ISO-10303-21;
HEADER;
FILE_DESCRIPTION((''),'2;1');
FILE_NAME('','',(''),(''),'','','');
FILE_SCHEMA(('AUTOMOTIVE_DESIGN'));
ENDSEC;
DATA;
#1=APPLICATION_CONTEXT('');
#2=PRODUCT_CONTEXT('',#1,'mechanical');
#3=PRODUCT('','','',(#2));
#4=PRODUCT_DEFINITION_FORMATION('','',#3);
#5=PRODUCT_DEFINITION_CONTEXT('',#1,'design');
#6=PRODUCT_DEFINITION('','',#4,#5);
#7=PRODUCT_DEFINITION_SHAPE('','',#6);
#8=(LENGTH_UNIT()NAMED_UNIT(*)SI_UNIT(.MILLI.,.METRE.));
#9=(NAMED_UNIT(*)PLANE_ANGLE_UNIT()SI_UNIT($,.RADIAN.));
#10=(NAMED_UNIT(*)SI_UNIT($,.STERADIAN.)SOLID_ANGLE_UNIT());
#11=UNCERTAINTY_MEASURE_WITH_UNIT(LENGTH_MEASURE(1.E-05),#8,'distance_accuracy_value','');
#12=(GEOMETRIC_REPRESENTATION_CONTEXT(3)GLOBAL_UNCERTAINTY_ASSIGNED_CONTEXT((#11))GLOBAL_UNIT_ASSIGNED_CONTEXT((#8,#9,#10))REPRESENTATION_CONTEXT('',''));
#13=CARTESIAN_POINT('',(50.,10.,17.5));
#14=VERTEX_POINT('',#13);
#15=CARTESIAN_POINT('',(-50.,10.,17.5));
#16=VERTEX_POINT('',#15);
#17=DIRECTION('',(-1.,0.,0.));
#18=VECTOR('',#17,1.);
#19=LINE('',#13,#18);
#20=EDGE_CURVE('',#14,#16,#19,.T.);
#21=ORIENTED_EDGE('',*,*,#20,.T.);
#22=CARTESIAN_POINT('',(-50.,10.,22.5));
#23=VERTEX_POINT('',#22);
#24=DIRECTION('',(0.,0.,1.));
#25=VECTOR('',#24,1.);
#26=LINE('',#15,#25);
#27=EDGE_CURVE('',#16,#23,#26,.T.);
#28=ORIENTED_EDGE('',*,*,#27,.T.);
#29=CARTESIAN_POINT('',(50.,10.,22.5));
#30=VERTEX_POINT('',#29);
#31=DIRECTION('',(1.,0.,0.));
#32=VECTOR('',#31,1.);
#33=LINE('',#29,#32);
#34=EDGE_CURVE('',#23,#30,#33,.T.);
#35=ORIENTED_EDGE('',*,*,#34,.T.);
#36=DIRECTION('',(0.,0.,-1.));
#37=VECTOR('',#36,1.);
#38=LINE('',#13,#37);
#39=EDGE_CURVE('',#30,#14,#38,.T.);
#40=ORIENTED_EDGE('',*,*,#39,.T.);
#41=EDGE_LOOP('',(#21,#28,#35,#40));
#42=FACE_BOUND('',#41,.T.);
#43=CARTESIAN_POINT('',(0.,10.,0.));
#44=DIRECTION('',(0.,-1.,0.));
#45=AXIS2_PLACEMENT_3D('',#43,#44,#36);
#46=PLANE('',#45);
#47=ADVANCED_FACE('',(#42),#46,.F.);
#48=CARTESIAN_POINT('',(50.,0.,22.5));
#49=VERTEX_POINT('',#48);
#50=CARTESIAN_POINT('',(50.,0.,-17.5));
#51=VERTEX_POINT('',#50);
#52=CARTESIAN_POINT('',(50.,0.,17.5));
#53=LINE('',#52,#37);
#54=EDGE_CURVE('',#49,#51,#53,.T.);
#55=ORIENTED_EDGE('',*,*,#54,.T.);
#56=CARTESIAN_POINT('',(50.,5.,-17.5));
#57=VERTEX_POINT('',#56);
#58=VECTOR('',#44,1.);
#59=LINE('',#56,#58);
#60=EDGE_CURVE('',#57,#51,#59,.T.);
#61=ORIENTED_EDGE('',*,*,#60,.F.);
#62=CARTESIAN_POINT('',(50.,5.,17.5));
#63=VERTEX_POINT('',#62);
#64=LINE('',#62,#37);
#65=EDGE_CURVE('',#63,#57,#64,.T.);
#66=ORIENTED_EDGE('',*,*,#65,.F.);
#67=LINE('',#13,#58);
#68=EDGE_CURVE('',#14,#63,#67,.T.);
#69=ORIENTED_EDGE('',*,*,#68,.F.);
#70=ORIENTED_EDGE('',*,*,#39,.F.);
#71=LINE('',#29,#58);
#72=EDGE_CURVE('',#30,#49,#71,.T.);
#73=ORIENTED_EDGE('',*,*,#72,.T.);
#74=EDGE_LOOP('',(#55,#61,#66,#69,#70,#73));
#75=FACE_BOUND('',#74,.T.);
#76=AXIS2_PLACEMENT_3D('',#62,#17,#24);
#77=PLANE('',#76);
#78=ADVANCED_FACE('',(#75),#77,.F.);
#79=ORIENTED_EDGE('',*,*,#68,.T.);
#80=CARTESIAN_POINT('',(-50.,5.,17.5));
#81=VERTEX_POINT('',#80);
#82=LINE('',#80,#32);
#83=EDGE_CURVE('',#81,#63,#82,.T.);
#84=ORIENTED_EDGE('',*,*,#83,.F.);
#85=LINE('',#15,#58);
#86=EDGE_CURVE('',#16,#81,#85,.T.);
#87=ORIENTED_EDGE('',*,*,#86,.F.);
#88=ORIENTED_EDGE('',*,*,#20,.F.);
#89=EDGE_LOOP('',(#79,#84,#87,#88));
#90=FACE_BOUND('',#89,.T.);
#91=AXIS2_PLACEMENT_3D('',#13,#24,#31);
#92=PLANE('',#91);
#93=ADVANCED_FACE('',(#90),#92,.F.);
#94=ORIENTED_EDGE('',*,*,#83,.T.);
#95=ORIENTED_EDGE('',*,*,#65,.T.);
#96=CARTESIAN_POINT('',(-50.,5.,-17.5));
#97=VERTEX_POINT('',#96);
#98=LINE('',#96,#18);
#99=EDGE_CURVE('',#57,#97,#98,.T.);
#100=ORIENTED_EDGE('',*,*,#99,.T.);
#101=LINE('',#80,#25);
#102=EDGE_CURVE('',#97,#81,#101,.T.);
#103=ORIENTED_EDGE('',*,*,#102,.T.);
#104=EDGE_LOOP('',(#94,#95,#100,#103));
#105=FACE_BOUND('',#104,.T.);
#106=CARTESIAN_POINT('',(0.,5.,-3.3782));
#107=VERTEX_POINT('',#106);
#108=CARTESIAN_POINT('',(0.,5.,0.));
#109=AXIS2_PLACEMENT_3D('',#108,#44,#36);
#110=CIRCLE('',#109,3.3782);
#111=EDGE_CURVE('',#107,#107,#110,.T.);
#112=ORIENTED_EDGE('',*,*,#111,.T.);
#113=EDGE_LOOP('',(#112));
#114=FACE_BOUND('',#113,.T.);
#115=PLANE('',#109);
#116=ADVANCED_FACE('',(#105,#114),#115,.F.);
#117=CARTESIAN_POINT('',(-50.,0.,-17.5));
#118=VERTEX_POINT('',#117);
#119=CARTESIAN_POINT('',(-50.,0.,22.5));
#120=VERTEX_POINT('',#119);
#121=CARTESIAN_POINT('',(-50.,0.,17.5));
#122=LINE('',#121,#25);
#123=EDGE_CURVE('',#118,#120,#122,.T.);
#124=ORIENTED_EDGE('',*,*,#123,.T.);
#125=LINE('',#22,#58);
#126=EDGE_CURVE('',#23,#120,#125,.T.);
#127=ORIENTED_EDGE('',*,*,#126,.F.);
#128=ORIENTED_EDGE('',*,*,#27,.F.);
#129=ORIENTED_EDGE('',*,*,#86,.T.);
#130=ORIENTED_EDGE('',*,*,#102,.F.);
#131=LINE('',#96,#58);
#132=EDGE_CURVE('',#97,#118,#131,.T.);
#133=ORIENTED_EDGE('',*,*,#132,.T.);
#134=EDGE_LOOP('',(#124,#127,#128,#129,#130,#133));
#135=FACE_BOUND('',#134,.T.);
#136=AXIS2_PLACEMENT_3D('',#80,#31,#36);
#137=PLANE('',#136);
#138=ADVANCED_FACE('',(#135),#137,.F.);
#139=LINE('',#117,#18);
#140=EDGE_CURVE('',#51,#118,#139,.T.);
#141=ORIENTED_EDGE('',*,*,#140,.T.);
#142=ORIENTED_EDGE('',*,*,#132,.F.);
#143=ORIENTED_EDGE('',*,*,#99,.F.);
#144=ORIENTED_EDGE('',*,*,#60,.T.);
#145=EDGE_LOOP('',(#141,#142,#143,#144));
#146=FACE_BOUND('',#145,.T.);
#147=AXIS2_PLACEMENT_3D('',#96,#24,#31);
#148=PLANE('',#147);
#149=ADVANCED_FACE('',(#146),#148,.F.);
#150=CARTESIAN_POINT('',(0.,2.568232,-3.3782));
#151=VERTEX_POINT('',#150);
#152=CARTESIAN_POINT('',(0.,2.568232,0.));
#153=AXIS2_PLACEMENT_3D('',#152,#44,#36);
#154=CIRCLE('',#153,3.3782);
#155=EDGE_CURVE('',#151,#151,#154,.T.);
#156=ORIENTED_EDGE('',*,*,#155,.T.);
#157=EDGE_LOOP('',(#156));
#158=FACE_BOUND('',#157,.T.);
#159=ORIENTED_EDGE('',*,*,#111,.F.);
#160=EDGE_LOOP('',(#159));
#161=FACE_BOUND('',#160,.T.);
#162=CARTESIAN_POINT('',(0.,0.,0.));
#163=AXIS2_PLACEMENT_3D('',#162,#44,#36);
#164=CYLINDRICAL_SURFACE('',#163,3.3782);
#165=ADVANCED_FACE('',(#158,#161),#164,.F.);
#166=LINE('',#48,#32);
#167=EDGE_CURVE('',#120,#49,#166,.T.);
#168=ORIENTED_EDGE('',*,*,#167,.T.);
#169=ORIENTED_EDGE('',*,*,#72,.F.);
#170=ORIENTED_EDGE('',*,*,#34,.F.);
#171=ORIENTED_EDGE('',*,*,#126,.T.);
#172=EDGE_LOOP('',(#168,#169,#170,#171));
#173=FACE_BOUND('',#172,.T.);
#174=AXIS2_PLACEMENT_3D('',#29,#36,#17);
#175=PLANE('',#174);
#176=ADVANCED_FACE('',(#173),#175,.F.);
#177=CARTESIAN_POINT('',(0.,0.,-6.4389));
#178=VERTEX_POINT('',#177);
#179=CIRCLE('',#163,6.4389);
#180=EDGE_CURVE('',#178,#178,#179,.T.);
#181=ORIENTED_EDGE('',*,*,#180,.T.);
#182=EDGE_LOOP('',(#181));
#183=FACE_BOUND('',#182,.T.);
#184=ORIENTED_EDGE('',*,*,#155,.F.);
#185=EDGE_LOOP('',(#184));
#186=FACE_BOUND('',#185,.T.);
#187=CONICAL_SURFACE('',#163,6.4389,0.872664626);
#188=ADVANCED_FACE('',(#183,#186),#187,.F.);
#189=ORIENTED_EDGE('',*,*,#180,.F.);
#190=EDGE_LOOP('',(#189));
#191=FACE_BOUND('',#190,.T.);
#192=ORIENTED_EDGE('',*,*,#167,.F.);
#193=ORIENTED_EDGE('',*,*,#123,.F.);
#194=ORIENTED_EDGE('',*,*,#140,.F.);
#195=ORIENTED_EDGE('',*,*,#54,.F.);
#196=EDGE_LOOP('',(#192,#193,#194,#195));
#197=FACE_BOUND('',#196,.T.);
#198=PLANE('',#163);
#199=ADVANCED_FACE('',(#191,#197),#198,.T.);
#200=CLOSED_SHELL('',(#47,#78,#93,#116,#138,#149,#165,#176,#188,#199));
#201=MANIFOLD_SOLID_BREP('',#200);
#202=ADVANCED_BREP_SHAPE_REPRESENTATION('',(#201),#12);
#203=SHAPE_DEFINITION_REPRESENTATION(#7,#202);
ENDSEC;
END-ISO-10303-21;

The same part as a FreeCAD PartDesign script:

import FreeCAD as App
import Part
import Sketcher
Q = App.Units.Quantity


def add_polygon(sketch, points):
    """Adds a closed chain of lines whose ends are joined by coincident constraints."""
    first, n = sketch.GeometryCount, len(points)
    for a, b in zip(points, points[1:] + points[:1]):
        sketch.addGeometry(Part.LineSegment(App.Vector(*a, 0), App.Vector(*b, 0)), False)
    for i in range(n):
        sketch.addConstraint(Sketcher.Constraint("Coincident", first + i, 2, first + (i + 1) % n, 1))

doc = App.newDocument("Part")
params = doc.addObject("Spreadsheet::Sheet", "Params")
for row, (alias, value) in enumerate([
    ("sketch1_width", "100 mm"),
    ("sketch1_height", "35 mm"),
    ("pad1_length", "5 mm"),
    ("sketch2_width", "100 mm"),
    ("sketch2_height", "5 mm"),
    ("pad2_length", "10 mm"),
    ("hole_diameter", "6.7564 mm"),
    ("hole_csink_diameter", "12.8778 mm"),
], start=1):
    params.set(f"A{row}", alias)
    params.set(f"B{row}", "=" + value)
    params.setAlias(f"B{row}", alias)

body = doc.addObject("PartDesign::Body", "Body")

# Sketch on XZ plane
sketch1 = doc.addObject("Sketcher::SketchObject", "Sketch")
body.addObject(sketch1)
sketch1.AttachmentSupport = (doc.XZ_Plane, [""])
sketch1.MapMode = "FlatFace"
add_polygon(sketch1, [(-50, -18), (-50, 18), (50, 18), (50, -18)])  # lines 0-3
sketch1.addConstraint([
    Sketcher.Constraint("Vertical", 0),
    Sketcher.Constraint("Horizontal", 1),
    Sketcher.Constraint("Vertical", 2),
    Sketcher.Constraint("Horizontal", 3),
    Sketcher.Constraint("Symmetric", 0, 2, 2, 2, -1, 1),
    Sketcher.Constraint("DistanceX", 1, 1, 1, 2, Q("100 mm")),
    Sketcher.Constraint("DistanceY", 0, 1, 0, 2, Q("35 mm")),
])
sketch1.setExpression("Constraints[9]", "Params.sketch1_width")
sketch1.setExpression("Constraints[10]", "Params.sketch1_height")
pad1 = doc.addObject("PartDesign::Pad", "Pad")
body.addObject(pad1)
pad1.Profile = sketch1
pad1.setExpression("Length", "Params.pad1_length")
pad1.Reversed = True

# Sketch on XZ plane
sketch2 = doc.addObject("Sketcher::SketchObject", "Sketch001")
body.addObject(sketch2)
sketch2.AttachmentSupport = (doc.XZ_Plane, [""])
sketch2.MapMode = "FlatFace"
add_polygon(sketch2, [(-50, 18), (-50, 22), (50, 22), (50, 18)])  # lines 0-3
sketch2.addConstraint([
    Sketcher.Constraint("Vertical", 0),
    Sketcher.Constraint("Horizontal", 1),
    Sketcher.Constraint("Vertical", 2),
    Sketcher.Constraint("Horizontal", 3),
    Sketcher.Constraint("DistanceX", 1, 1, 1, 2, Q("100 mm")),
    Sketcher.Constraint("DistanceY", 0, 1, 0, 2, Q("5 mm")),
    Sketcher.Constraint("DistanceX", 0, 2, -1, 1, Q("50 mm")),
    Sketcher.Constraint("DistanceY", -1, 1, 0, 2, Q("22.5 mm")),
])
sketch2.setExpression("Constraints[8]", "Params.sketch2_width")
sketch2.setExpression("Constraints[9]", "Params.sketch2_height")
pad2 = doc.addObject("PartDesign::Pad", "Pad001")
body.addObject(pad2)
pad2.Profile = sketch2
pad2.setExpression("Length", "Params.pad2_length")
pad2.Reversed = True

# Sketch on XZ plane
sketch3 = doc.addObject("Sketcher::SketchObject", "Sketch002")
body.addObject(sketch3)
sketch3.AttachmentSupport = (doc.XZ_Plane, [""])
sketch3.MapMode = "FlatFace"
sketch3.addGeometry(Part.Circle(App.Vector(0, 0, 0), App.Vector(0, 0, 1), 3.4), False)
sketch3.addConstraint([
    Sketcher.Constraint("Coincident", 0, 3, -1, 1),
    Sketcher.Constraint("Diameter", 0, Q("6.7564 mm")),
])
doc.recompute()
hole = doc.addObject("PartDesign::Hole", "Hole")
body.addObject(hole)
hole.Profile = sketch3
hole.ThreadType = "None"
hole.setExpression("Diameter", "Params.hole_diameter")
hole.DepthType = "ThroughAll"
hole.HoleCutType = "Countersink"
hole.setExpression("HoleCutDiameter", "Params.hole_csink_diameter")
hole.HoleCutCountersinkAngle = 100

doc.recompute()
